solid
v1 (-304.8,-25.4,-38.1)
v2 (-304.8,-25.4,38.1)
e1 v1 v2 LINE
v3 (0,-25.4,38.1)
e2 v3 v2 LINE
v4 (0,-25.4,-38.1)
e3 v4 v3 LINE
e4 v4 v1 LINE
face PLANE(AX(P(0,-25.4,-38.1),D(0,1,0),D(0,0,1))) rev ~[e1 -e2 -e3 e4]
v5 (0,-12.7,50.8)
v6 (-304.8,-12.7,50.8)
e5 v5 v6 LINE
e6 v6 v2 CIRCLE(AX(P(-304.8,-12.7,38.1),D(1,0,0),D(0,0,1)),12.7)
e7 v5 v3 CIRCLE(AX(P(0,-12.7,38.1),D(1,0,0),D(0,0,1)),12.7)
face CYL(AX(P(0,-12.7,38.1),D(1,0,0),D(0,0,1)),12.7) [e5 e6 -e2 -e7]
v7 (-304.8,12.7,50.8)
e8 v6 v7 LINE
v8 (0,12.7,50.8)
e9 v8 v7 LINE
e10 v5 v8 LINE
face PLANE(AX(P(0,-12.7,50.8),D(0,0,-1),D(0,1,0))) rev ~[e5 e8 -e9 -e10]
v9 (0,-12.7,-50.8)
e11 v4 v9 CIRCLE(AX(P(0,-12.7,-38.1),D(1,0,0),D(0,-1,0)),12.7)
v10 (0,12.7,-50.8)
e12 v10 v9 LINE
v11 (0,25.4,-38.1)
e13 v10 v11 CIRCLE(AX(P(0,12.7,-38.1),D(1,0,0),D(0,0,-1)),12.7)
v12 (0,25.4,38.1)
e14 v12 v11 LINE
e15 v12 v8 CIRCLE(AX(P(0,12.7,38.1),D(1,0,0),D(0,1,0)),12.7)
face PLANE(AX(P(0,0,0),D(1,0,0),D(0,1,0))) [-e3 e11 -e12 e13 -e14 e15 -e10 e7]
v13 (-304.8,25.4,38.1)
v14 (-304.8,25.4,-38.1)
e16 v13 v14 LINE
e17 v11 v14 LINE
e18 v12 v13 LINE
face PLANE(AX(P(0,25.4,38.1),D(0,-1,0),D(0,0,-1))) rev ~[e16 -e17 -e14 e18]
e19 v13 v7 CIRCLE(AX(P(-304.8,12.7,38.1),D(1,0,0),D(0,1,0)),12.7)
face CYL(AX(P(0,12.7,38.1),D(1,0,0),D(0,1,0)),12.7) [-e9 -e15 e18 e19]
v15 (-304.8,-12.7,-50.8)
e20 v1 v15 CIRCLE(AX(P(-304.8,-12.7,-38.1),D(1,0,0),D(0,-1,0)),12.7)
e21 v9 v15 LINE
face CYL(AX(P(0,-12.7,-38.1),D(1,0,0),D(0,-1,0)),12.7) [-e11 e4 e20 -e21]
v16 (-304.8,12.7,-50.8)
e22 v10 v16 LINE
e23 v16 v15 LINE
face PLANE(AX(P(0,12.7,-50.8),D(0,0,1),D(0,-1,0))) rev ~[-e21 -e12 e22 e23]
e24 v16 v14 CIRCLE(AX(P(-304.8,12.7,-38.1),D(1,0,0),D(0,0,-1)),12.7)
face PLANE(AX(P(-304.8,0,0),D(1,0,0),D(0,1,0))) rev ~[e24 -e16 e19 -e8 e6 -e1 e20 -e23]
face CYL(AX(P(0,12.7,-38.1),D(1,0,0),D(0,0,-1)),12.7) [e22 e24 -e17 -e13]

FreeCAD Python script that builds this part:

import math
import FreeCAD as App
import Part
import Sketcher
Q = App.Units.Quantity

doc = App.newDocument("Part")
params = doc.addObject("Spreadsheet::Sheet", "Params")
for row, (alias, value) in enumerate([
    ("sketch1_radius", "0.5 in"),
    ("pad1_length", "12 in"),
], start=1):
    params.set(f"A{row}", alias)
    params.set(f"B{row}", "=" + value)
    params.setAlias(f"B{row}", alias)

body = doc.addObject("PartDesign::Body", "Body")

# Sketch on YZ plane
sketch1 = body.newObject("Sketcher::SketchObject", "Sketch")
sketch1.AttachmentSupport = (doc.getObject("YZ_Plane"), [""])
sketch1.MapMode = "FlatFace"
sketch1.addGeometry(Part.LineSegment(App.Vector(12.7, 50.8, 0), App.Vector(-12.7, 50.8, 0)), False)
sketch1.addGeometry(Part.ArcOfCircle(Part.Circle(App.Vector(-12.7, 38.1, 0), App.Vector(0, 0, 1), 12.7), math.radians(90), math.radians(180)), False)
sketch1.addGeometry(Part.LineSegment(App.Vector(-25.4, 38.1, 0), App.Vector(-25.4, -38.1, 0)), False)
sketch1.addGeometry(Part.ArcOfCircle(Part.Circle(App.Vector(-12.7, -38.1, 0), App.Vector(0, 0, 1), 12.7), math.radians(180), math.radians(270)), False)
sketch1.addGeometry(Part.LineSegment(App.Vector(-12.7, -50.8, 0), App.Vector(12.7, -50.8, 0)), False)
sketch1.addGeometry(Part.ArcOfCircle(Part.Circle(App.Vector(12.7, -38.1, 0), App.Vector(0, 0, 1), 12.7), math.radians(-90), math.radians(0)), False)
sketch1.addGeometry(Part.LineSegment(App.Vector(25.4, -38.1, 0), App.Vector(25.4, 38.1, 0)), False)
sketch1.addGeometry(Part.ArcOfCircle(Part.Circle(App.Vector(12.7, 38.1, 0), App.Vector(0, 0, 1), 12.7), math.radians(0), math.radians(90)), False)
sketch1.addConstraint(Sketcher.Constraint("Tangent", 0, 2, 1, 1))
sketch1.addConstraint(Sketcher.Constraint("Tangent", 1, 2, 2, 1))
sketch1.addConstraint(Sketcher.Constraint("Tangent", 2, 2, 3, 1))
sketch1.addConstraint(Sketcher.Constraint("Tangent", 3, 2, 4, 1))
sketch1.addConstraint(Sketcher.Constraint("Tangent", 4, 2, 5, 1))
sketch1.addConstraint(Sketcher.Constraint("Tangent", 5, 2, 6, 1))
sketch1.addConstraint(Sketcher.Constraint("Tangent", 6, 2, 7, 1))
sketch1.addConstraint(Sketcher.Constraint("Tangent", 7, 2, 0, 1))
sketch1.addConstraint(Sketcher.Constraint("Horizontal", 0))
sketch1.addConstraint(Sketcher.Constraint("Vertical", 2))
sketch1.addConstraint(Sketcher.Constraint("Horizontal", 4))
sketch1.addConstraint(Sketcher.Constraint("Vertical", 6))
sketch1.addConstraint(Sketcher.Constraint("Equal", 1, 3))
sketch1.addConstraint(Sketcher.Constraint("Equal", 3, 5))
sketch1.addConstraint(Sketcher.Constraint("Equal", 5, 7))
sketch1.addConstraint(Sketcher.Constraint("Symmetric", 1, 3, 5, 3, -1, 1))
sketch1.addConstraint(Sketcher.Constraint("Radius", 1, Q("0.5 in")))
sketch1.addConstraint(Sketcher.Constraint("DistanceY", -1, 1, 0, 2, Q("2 in")))
sketch1.addConstraint(Sketcher.Constraint("DistanceX", 2, 2, 5, 2, Q("2 in")))
sketch1.setExpression("Constraints[16]", "Params.sketch1_radius")
pad1 = body.newObject("PartDesign::Pad", "Pad")
pad1.Profile = sketch1
pad1.setExpression("Length", "Params.pad1_length")
pad1.Reversed = True

doc.recompute()
